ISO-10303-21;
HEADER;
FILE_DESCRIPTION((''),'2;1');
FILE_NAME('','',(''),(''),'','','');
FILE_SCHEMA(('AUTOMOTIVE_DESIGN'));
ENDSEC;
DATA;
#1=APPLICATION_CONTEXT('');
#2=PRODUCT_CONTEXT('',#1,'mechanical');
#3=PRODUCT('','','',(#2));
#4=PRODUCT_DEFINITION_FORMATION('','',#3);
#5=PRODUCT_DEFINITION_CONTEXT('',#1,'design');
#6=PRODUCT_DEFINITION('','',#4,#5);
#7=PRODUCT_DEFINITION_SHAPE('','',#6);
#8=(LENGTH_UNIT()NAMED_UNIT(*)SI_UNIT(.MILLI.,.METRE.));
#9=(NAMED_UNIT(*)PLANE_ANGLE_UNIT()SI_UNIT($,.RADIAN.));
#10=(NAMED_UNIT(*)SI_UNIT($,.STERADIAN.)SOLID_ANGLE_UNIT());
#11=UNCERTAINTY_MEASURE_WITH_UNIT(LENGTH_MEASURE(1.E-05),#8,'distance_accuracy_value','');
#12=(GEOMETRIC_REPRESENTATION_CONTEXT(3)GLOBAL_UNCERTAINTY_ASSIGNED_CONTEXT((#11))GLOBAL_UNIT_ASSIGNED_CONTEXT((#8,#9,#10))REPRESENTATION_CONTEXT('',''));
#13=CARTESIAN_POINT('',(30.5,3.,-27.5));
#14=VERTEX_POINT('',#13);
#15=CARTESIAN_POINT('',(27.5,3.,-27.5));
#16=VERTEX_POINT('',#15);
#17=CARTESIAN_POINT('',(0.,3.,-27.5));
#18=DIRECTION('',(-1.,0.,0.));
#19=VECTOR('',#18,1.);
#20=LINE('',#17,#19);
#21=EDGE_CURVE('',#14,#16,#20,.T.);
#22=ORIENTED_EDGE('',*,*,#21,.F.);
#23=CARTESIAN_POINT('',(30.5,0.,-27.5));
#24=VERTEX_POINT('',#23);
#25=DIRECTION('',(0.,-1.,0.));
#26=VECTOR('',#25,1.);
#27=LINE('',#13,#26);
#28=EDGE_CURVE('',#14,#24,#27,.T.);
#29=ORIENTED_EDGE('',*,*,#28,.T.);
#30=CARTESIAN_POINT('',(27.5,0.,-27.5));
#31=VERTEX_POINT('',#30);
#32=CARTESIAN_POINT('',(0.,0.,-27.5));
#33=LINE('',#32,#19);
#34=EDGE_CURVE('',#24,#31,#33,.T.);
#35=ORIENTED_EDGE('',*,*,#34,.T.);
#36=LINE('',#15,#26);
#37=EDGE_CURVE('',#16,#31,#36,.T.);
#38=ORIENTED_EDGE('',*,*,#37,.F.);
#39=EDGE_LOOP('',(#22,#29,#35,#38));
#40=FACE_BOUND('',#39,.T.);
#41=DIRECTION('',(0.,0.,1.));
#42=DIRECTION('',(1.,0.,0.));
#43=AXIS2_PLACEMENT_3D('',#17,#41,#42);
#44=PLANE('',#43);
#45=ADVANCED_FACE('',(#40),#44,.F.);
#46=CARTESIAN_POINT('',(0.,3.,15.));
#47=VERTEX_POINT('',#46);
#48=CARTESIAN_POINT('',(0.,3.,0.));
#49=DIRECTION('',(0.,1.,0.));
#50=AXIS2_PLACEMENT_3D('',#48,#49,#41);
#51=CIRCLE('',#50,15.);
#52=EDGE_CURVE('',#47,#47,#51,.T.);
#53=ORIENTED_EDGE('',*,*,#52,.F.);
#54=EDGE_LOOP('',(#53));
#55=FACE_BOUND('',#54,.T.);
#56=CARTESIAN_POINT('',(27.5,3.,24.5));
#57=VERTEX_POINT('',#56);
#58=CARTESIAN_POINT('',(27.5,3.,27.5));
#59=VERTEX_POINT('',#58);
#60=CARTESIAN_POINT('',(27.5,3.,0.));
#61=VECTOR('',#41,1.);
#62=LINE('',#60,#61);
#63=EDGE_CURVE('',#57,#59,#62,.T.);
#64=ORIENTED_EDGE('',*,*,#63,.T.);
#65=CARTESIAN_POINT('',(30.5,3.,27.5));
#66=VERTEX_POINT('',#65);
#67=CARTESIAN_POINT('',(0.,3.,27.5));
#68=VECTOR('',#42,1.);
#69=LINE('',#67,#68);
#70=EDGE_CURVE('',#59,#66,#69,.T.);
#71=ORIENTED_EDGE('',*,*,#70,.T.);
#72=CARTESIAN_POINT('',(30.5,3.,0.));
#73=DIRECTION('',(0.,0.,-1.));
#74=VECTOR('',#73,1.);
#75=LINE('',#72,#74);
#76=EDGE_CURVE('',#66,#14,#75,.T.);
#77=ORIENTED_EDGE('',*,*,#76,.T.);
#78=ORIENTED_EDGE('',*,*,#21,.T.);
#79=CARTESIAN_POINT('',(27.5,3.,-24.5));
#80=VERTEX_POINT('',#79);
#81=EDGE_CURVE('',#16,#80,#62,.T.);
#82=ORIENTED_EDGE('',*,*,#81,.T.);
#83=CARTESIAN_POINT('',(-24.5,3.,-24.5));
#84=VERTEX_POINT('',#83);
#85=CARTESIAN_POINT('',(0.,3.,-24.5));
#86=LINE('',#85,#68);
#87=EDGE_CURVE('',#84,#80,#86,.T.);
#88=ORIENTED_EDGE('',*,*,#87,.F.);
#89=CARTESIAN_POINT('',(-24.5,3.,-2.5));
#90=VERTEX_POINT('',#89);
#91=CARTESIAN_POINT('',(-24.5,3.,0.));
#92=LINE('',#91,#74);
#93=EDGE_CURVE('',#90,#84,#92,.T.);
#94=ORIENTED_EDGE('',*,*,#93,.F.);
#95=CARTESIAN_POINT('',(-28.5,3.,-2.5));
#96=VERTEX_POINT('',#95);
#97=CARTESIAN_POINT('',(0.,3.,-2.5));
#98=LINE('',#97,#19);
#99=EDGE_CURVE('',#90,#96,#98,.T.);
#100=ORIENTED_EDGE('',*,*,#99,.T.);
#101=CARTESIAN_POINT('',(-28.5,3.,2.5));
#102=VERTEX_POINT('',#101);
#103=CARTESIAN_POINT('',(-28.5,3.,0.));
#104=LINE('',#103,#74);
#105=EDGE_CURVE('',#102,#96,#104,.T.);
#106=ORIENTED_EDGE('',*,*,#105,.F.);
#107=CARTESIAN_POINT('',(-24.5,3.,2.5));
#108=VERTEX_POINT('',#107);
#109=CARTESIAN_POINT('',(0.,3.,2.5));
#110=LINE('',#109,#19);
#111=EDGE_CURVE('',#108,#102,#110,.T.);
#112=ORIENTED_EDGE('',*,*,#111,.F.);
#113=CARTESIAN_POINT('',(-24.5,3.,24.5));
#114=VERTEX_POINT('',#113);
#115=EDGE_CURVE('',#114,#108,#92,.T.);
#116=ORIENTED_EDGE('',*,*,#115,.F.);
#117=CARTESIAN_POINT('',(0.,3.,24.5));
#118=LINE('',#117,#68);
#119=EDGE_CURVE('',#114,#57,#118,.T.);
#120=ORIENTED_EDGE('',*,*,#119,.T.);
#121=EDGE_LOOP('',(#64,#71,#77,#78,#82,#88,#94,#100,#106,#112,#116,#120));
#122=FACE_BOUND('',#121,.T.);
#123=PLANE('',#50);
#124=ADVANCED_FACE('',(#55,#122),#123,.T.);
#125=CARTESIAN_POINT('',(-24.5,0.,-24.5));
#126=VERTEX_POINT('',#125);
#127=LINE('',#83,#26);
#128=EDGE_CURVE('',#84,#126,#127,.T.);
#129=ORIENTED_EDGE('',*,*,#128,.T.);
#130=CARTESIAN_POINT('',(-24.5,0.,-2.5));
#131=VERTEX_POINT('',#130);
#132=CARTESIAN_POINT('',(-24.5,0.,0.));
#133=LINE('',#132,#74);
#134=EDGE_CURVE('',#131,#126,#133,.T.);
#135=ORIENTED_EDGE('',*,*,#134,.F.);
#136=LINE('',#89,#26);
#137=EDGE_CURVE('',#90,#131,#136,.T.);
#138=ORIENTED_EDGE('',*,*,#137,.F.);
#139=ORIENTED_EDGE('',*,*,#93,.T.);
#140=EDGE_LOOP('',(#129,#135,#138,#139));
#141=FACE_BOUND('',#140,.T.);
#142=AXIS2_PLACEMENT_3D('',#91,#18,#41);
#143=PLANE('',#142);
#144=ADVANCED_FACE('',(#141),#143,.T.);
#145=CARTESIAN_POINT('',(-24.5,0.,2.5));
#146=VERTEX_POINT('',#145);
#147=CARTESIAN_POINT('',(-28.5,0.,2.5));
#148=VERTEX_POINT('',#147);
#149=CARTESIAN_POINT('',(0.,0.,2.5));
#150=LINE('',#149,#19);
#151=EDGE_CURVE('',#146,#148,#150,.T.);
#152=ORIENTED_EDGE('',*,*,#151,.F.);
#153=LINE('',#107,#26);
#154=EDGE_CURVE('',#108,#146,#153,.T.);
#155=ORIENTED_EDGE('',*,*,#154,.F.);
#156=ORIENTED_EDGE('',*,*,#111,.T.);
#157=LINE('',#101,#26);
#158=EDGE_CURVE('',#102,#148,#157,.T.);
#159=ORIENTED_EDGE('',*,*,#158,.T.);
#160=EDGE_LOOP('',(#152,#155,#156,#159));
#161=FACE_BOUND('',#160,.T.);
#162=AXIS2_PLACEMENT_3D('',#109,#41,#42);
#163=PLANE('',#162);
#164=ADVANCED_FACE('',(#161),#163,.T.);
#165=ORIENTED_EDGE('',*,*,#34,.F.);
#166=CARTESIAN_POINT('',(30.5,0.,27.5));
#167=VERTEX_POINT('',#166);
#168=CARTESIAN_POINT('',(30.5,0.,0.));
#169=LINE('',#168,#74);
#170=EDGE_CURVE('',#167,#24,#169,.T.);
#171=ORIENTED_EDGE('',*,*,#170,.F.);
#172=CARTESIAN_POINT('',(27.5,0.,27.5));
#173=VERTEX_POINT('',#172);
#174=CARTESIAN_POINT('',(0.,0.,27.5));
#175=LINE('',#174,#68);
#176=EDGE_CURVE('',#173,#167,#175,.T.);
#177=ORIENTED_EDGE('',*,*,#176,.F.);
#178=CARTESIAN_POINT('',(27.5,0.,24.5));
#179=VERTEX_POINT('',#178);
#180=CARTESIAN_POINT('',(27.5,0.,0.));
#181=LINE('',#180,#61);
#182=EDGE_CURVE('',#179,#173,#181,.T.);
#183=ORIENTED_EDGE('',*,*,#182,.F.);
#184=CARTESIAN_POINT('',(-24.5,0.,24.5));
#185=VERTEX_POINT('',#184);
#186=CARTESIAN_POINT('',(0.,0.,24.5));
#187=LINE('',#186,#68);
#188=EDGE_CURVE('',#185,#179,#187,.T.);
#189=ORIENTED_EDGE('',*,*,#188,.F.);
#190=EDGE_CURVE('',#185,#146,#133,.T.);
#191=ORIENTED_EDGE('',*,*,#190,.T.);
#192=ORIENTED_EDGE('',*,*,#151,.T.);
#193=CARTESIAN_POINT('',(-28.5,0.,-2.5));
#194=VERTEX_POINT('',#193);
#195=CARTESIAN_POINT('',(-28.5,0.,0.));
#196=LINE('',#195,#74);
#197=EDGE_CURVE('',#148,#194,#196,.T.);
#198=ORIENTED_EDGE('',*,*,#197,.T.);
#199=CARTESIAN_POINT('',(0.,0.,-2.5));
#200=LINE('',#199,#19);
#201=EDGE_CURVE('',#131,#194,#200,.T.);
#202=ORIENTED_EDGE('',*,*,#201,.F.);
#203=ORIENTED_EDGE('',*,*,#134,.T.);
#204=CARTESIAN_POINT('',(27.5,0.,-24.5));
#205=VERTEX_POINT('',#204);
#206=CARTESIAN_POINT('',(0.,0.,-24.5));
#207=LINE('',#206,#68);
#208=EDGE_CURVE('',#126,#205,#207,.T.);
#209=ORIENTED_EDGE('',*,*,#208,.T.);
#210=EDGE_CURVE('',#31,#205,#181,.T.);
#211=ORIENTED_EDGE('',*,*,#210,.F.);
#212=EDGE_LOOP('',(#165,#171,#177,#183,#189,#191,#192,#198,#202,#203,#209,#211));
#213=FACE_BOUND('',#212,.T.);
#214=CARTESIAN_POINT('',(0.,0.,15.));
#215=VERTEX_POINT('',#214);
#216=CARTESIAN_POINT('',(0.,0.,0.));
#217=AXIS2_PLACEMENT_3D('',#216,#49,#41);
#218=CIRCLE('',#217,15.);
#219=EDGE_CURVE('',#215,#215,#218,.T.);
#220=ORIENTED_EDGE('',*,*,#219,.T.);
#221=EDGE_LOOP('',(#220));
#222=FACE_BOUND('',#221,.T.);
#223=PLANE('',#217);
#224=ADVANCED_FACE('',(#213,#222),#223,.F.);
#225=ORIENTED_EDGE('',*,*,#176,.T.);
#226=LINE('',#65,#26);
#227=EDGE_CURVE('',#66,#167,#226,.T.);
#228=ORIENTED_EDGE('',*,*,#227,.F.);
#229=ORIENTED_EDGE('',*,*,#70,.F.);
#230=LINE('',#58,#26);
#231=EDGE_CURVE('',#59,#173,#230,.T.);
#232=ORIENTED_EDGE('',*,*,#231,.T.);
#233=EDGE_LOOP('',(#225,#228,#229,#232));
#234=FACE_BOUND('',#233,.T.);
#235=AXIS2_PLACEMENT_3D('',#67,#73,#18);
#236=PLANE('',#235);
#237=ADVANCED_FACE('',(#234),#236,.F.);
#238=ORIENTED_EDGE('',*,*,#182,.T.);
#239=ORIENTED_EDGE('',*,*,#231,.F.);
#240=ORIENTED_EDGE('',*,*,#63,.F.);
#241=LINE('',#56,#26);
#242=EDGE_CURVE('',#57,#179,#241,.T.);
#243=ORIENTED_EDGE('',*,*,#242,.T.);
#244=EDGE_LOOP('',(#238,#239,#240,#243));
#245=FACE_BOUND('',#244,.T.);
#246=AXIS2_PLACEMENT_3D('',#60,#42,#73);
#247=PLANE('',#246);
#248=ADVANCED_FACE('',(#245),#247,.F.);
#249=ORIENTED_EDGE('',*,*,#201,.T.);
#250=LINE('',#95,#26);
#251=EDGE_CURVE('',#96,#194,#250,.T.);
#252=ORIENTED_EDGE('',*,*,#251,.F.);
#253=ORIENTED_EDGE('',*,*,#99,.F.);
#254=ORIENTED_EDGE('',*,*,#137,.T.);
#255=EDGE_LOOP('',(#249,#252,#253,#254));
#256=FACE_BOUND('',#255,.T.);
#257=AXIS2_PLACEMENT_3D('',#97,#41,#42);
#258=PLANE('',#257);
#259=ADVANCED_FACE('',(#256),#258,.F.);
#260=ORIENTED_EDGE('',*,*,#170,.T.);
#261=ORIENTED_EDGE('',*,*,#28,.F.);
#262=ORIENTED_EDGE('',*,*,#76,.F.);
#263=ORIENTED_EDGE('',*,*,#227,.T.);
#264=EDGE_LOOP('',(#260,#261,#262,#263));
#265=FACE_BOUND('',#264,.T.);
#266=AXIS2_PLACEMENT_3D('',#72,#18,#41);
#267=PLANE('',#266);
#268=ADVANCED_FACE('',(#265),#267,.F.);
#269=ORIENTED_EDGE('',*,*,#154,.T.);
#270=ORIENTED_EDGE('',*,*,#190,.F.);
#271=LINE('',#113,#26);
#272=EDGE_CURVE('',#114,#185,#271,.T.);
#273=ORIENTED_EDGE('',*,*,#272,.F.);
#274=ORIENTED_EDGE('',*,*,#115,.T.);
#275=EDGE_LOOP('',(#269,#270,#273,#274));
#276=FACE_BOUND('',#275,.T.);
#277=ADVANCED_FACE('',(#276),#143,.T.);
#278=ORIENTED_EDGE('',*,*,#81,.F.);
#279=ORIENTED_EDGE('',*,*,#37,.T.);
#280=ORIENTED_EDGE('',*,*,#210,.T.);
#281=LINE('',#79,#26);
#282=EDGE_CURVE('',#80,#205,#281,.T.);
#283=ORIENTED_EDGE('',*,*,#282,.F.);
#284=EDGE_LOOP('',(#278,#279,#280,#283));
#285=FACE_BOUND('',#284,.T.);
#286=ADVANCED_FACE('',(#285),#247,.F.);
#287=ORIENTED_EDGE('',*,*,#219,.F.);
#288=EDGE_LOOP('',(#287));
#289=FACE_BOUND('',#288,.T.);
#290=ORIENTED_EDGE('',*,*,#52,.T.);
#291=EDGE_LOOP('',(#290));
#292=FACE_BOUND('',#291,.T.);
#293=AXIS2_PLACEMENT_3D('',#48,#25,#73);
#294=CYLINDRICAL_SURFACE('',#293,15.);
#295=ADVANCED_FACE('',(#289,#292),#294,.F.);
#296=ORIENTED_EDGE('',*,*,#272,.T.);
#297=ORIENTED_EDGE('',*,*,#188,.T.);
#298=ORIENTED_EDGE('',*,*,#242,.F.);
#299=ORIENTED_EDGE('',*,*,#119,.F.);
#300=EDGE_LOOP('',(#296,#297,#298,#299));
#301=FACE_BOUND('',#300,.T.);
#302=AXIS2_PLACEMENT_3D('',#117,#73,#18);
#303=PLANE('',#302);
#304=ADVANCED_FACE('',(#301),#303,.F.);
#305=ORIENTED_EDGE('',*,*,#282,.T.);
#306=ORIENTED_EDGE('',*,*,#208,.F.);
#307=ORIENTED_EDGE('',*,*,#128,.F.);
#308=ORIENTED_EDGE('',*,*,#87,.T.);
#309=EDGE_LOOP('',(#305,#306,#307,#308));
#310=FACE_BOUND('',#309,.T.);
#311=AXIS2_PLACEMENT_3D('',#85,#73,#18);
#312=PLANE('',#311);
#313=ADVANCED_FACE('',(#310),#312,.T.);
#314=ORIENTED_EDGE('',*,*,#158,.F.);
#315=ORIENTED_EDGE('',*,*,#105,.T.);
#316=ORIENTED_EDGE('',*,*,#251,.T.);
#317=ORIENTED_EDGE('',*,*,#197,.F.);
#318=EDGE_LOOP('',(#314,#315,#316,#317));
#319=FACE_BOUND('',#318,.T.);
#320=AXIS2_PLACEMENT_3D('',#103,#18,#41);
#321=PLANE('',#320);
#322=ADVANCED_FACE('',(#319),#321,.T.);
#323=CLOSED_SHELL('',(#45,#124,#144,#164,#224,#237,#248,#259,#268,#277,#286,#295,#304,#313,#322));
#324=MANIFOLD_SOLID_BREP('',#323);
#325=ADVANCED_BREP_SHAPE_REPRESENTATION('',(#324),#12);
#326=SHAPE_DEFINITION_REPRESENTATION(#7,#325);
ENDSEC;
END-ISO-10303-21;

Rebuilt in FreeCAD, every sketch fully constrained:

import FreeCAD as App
import Part
import Sketcher

doc = App.newDocument("Part")
body = doc.addObject("PartDesign::Body", "Body")

# Sketch on XZ plane
sketch1 = body.newObject("Sketcher::SketchObject", "Sketch")
sketch1.AttachmentSupport = (doc.getObject("XZ_Plane"), [""])
sketch1.MapMode = "FlatFace"
sketch1.addGeometry(Part.LineSegment(App.Vector(-24.5, 2.5, 0), App.Vector(-24.5, 24.5, 0)), False)
sketch1.addGeometry(Part.LineSegment(App.Vector(-24.5, 24.5, 0), App.Vector(27.5, 24.5, 0)), False)
sketch1.addGeometry(Part.LineSegment(App.Vector(27.5, 24.5, 0), App.Vector(27.5, 27.5, 0)), False)
sketch1.addGeometry(Part.LineSegment(App.Vector(27.5, 27.5, 0), App.Vector(30.5, 27.5, 0)), False)
sketch1.addGeometry(Part.LineSegment(App.Vector(30.5, 27.5, 0), App.Vector(30.5, -27.5, 0)), False)
sketch1.addGeometry(Part.LineSegment(App.Vector(30.5, -27.5, 0), App.Vector(27.5, -27.5, 0)), False)
sketch1.addGeometry(Part.LineSegment(App.Vector(27.5, -27.5, 0), App.Vector(27.5, -24.5, 0)), False)
sketch1.addGeometry(Part.LineSegment(App.Vector(27.5, -24.5, 0), App.Vector(-24.5, -24.5, 0)), False)
sketch1.addGeometry(Part.LineSegment(App.Vector(-24.5, -24.5, 0), App.Vector(-24.5, -2.5, 0)), False)
sketch1.addGeometry(Part.LineSegment(App.Vector(-24.5, -2.5, 0), App.Vector(-28.5, -2.5, 0)), False)
sketch1.addGeometry(Part.LineSegment(App.Vector(-28.5, -2.5, 0), App.Vector(-28.5, 2.5, 0)), False)
sketch1.addGeometry(Part.LineSegment(App.Vector(-28.5, 2.5, 0), App.Vector(-24.5, 2.5, 0)), False)
sketch1.addGeometry(Part.Circle(App.Vector(0, 0, 0), App.Vector(0, 0, 1), 15), False)
sketch1.addConstraint(Sketcher.Constraint("Coincident", 0, 2, 1, 1))
sketch1.addConstraint(Sketcher.Constraint("Coincident", 1, 2, 2, 1))
sketch1.addConstraint(Sketcher.Constraint("Coincident", 2, 2, 3, 1))
sketch1.addConstraint(Sketcher.Constraint("Coincident", 3, 2, 4, 1))
sketch1.addConstraint(Sketcher.Constraint("Coincident", 4, 2, 5, 1))
sketch1.addConstraint(Sketcher.Constraint("Coincident", 5, 2, 6, 1))
sketch1.addConstraint(Sketcher.Constraint("Coincident", 6, 2, 7, 1))
sketch1.addConstraint(Sketcher.Constraint("Coincident", 7, 2, 8, 1))
sketch1.addConstraint(Sketcher.Constraint("Coincident", 8, 2, 9, 1))
sketch1.addConstraint(Sketcher.Constraint("Coincident", 9, 2, 10, 1))
sketch1.addConstraint(Sketcher.Constraint("Coincident", 10, 2, 11, 1))
sketch1.addConstraint(Sketcher.Constraint("Coincident", 11, 2, 0, 1))
sketch1.addConstraint(Sketcher.Constraint("Vertical", 0))
sketch1.addConstraint(Sketcher.Constraint("Horizontal", 1))
sketch1.addConstraint(Sketcher.Constraint("Vertical", 2))
sketch1.addConstraint(Sketcher.Constraint("Horizontal", 3))
sketch1.addConstraint(Sketcher.Constraint("Vertical", 4))
sketch1.addConstraint(Sketcher.Constraint("Horizontal", 5))
sketch1.addConstraint(Sketcher.Constraint("Vertical", 6))
sketch1.addConstraint(Sketcher.Constraint("Horizontal", 7))
sketch1.addConstraint(Sketcher.Constraint("Vertical", 8))
sketch1.addConstraint(Sketcher.Constraint("Horizontal", 9))
sketch1.addConstraint(Sketcher.Constraint("Vertical", 10))
sketch1.addConstraint(Sketcher.Constraint("Horizontal", 11))
sketch1.addConstraint(Sketcher.Constraint("Coincident", 12, 3, -1, 1))
sketch1.addConstraint(Sketcher.Constraint("Symmetric", 2, 2, 5, 2, -1))
sketch1.addConstraint(Sketcher.Constraint("Symmetric", 0, 2, 7, 2, -1))
sketch1.addConstraint(Sketcher.Constraint("Equal", 5, 2))
sketch1.addConstraint(Sketcher.Constraint("Equal", 0, 8))
sketch1.addConstraint(Sketcher.Constraint("Diameter", 12, 30.0))
sketch1.addConstraint(Sketcher.Constraint("DistanceX", 1, 1, 1, 2, 52.0))
sketch1.addConstraint(Sketcher.Constraint("DistanceX", 3, 1, 3, 2, 3.0))
sketch1.addConstraint(Sketcher.Constraint("DistanceX", 9, 2, 9, 1, 4.0))
sketch1.addConstraint(Sketcher.Constraint("DistanceY", 0, 1, 0, 2, 22.0))
sketch1.addConstraint(Sketcher.Constraint("DistanceY", 4, 2, 4, 1, 55.0))
sketch1.addConstraint(Sketcher.Constraint("DistanceX", 0, 2, -1, 1, 24.5))
pad1 = body.newObject("PartDesign::Pad", "Pad")
pad1.Profile = sketch1
pad1.Length = 3
pad1.Reversed = True

doc.recompute()
